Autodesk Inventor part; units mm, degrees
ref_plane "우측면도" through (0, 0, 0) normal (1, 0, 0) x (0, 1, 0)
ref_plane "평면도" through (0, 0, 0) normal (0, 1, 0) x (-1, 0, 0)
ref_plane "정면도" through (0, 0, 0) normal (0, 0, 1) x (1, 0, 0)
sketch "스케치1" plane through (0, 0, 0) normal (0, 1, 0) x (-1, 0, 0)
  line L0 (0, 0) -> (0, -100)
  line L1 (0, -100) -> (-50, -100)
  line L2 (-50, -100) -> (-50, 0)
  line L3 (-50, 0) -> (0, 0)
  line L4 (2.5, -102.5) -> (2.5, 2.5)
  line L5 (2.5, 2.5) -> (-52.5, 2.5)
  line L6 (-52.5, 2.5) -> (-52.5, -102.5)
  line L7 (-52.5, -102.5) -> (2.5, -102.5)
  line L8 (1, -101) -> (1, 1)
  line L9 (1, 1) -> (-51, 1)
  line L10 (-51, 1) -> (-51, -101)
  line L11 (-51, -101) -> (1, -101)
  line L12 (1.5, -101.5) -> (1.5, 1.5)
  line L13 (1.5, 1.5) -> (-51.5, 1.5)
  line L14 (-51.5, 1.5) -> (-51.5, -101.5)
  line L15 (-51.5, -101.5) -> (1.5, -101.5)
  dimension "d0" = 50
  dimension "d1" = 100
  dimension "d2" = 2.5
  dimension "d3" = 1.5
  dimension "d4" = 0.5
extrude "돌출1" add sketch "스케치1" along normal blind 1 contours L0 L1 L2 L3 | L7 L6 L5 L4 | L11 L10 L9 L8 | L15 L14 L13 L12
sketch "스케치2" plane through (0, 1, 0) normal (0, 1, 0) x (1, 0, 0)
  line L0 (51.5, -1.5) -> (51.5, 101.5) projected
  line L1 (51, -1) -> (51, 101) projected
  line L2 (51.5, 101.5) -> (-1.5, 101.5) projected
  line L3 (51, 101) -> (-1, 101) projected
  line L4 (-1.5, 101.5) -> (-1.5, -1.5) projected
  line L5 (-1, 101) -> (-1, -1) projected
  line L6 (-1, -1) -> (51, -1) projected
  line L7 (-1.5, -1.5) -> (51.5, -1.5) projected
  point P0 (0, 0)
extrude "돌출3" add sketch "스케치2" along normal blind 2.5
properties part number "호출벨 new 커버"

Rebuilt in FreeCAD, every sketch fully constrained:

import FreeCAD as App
import Part
import Sketcher
from FreeCAD import Vector
Q = App.Units.Quantity

doc = App.newDocument("Part")
body = doc.addObject("PartDesign::Body", "Body")

# Sketch on XZ plane
sketch1 = body.newObject("Sketcher::SketchObject", "Sketch")
sketch1.AttachmentSupport = (doc.getObject("XZ_Plane"), [""])
sketch1.MapMode = "FlatFace"
sketch1.addGeometry([
    Part.LineSegment(Vector(52, -102, 0), Vector(-2, -102, 0)),
    Part.LineSegment(Vector(-2, -102, 0), Vector(-2, 2, 0)),
    Part.LineSegment(Vector(-2, 2, 0), Vector(52, 2, 0)),
    Part.LineSegment(Vector(52, 2, 0), Vector(52, -102, 0)),
], False)
sketch1.addConstraint([
    Sketcher.Constraint("Coincident", 0, 2, 1, 1),
    Sketcher.Constraint("Coincident", 1, 2, 2, 1),
    Sketcher.Constraint("Coincident", 2, 2, 3, 1),
    Sketcher.Constraint("Coincident", 3, 2, 0, 1),
    Sketcher.Constraint("Horizontal", 0),
    Sketcher.Constraint("Vertical", 1),
    Sketcher.Constraint("Horizontal", 2),
    Sketcher.Constraint("Vertical", 3),
    Sketcher.Constraint("DistanceX", 0, 2, -1, 1, Q("2.5 mm")),
    Sketcher.Constraint("DistanceY", -1, 1, 1, 2, Q("2.5 mm")),
    Sketcher.Constraint("DistanceX", 0, 2, 0, 1, Q("55 mm")),
    Sketcher.Constraint("DistanceY", 1, 1, 1, 2, Q("105 mm")),
])
pad1 = body.newObject("PartDesign::Pad", "Pad")
pad1.Profile = sketch1
pad1.Length = 1
pad1.Reversed = True

# Sketch on XZ plane
sketch2 = body.newObject("Sketcher::SketchObject", "Sketch001")
sketch2.AttachmentSupport = (doc.getObject("XZ_Plane"), [""])
sketch2.MapMode = "FlatFace"
sketch2.AttachmentOffset = App.Placement(Vector(0, 0, -1), App.Rotation())
sketch2.addGeometry([
    Part.LineSegment(Vector(-2, 2, 0), Vector(52, 2, 0)),  # 0
    Part.LineSegment(Vector(52, 2, 0), Vector(52, -102, 0)),  # 1
    Part.LineSegment(Vector(52, -102, 0), Vector(-2, -102, 0)),  # 2
    Part.LineSegment(Vector(-2, -102, 0), Vector(-2, 2, 0)),  # 3
    Part.LineSegment(Vector(51, -101, 0), Vector(51, 1, 0)),  # 4
    Part.LineSegment(Vector(51, 1, 0), Vector(-1, 1, 0)),  # 5
    Part.LineSegment(Vector(-1, 1, 0), Vector(-1, -101, 0)),  # 6
    Part.LineSegment(Vector(-1, -101, 0), Vector(51, -101, 0)),  # 7
], False)
sketch2.addConstraint([
    Sketcher.Constraint("Coincident", 0, 2, 1, 1),
    Sketcher.Constraint("Coincident", 1, 2, 2, 1),
    Sketcher.Constraint("Coincident", 2, 2, 3, 1),
    Sketcher.Constraint("Coincident", 3, 2, 0, 1),
    Sketcher.Constraint("Coincident", 4, 2, 5, 1),
    Sketcher.Constraint("Coincident", 5, 2, 6, 1),
    Sketcher.Constraint("Coincident", 6, 2, 7, 1),
    Sketcher.Constraint("Coincident", 7, 2, 4, 1),
    Sketcher.Constraint("Horizontal", 0),
    Sketcher.Constraint("Vertical", 1),
    Sketcher.Constraint("Horizontal", 2),
    Sketcher.Constraint("Vertical", 3),
    Sketcher.Constraint("Vertical", 4),
    Sketcher.Constraint("Horizontal", 5),
    Sketcher.Constraint("Vertical", 6),
    Sketcher.Constraint("Horizontal", 7),
    Sketcher.Constraint("DistanceX", 0, 1, 0, 2, Q("53 mm")),
    Sketcher.Constraint("DistanceX", 5, 2, 5, 1, Q("52 mm")),
    Sketcher.Constraint("DistanceY", 1, 2, 1, 1, Q("103 mm")),
    Sketcher.Constraint("DistanceY", 4, 1, 4, 2, Q("102 mm")),
    Sketcher.Constraint("DistanceX", -1, 1, 4, 2, Q("51 mm")),
    Sketcher.Constraint("DistanceY", -1, 1, 4, 2, Q("1 mm")),
    Sketcher.Constraint("DistanceX", -1, 1, 0, 2, Q("51.5 mm")),
    Sketcher.Constraint("DistanceY", -1, 1, 0, 2, Q("1.5 mm")),
])
pad2 = body.newObject("PartDesign::Pad", "Pad001")
pad2.Profile = sketch2
pad2.Length = 2.5
pad2.Reversed = True

doc.recompute()
